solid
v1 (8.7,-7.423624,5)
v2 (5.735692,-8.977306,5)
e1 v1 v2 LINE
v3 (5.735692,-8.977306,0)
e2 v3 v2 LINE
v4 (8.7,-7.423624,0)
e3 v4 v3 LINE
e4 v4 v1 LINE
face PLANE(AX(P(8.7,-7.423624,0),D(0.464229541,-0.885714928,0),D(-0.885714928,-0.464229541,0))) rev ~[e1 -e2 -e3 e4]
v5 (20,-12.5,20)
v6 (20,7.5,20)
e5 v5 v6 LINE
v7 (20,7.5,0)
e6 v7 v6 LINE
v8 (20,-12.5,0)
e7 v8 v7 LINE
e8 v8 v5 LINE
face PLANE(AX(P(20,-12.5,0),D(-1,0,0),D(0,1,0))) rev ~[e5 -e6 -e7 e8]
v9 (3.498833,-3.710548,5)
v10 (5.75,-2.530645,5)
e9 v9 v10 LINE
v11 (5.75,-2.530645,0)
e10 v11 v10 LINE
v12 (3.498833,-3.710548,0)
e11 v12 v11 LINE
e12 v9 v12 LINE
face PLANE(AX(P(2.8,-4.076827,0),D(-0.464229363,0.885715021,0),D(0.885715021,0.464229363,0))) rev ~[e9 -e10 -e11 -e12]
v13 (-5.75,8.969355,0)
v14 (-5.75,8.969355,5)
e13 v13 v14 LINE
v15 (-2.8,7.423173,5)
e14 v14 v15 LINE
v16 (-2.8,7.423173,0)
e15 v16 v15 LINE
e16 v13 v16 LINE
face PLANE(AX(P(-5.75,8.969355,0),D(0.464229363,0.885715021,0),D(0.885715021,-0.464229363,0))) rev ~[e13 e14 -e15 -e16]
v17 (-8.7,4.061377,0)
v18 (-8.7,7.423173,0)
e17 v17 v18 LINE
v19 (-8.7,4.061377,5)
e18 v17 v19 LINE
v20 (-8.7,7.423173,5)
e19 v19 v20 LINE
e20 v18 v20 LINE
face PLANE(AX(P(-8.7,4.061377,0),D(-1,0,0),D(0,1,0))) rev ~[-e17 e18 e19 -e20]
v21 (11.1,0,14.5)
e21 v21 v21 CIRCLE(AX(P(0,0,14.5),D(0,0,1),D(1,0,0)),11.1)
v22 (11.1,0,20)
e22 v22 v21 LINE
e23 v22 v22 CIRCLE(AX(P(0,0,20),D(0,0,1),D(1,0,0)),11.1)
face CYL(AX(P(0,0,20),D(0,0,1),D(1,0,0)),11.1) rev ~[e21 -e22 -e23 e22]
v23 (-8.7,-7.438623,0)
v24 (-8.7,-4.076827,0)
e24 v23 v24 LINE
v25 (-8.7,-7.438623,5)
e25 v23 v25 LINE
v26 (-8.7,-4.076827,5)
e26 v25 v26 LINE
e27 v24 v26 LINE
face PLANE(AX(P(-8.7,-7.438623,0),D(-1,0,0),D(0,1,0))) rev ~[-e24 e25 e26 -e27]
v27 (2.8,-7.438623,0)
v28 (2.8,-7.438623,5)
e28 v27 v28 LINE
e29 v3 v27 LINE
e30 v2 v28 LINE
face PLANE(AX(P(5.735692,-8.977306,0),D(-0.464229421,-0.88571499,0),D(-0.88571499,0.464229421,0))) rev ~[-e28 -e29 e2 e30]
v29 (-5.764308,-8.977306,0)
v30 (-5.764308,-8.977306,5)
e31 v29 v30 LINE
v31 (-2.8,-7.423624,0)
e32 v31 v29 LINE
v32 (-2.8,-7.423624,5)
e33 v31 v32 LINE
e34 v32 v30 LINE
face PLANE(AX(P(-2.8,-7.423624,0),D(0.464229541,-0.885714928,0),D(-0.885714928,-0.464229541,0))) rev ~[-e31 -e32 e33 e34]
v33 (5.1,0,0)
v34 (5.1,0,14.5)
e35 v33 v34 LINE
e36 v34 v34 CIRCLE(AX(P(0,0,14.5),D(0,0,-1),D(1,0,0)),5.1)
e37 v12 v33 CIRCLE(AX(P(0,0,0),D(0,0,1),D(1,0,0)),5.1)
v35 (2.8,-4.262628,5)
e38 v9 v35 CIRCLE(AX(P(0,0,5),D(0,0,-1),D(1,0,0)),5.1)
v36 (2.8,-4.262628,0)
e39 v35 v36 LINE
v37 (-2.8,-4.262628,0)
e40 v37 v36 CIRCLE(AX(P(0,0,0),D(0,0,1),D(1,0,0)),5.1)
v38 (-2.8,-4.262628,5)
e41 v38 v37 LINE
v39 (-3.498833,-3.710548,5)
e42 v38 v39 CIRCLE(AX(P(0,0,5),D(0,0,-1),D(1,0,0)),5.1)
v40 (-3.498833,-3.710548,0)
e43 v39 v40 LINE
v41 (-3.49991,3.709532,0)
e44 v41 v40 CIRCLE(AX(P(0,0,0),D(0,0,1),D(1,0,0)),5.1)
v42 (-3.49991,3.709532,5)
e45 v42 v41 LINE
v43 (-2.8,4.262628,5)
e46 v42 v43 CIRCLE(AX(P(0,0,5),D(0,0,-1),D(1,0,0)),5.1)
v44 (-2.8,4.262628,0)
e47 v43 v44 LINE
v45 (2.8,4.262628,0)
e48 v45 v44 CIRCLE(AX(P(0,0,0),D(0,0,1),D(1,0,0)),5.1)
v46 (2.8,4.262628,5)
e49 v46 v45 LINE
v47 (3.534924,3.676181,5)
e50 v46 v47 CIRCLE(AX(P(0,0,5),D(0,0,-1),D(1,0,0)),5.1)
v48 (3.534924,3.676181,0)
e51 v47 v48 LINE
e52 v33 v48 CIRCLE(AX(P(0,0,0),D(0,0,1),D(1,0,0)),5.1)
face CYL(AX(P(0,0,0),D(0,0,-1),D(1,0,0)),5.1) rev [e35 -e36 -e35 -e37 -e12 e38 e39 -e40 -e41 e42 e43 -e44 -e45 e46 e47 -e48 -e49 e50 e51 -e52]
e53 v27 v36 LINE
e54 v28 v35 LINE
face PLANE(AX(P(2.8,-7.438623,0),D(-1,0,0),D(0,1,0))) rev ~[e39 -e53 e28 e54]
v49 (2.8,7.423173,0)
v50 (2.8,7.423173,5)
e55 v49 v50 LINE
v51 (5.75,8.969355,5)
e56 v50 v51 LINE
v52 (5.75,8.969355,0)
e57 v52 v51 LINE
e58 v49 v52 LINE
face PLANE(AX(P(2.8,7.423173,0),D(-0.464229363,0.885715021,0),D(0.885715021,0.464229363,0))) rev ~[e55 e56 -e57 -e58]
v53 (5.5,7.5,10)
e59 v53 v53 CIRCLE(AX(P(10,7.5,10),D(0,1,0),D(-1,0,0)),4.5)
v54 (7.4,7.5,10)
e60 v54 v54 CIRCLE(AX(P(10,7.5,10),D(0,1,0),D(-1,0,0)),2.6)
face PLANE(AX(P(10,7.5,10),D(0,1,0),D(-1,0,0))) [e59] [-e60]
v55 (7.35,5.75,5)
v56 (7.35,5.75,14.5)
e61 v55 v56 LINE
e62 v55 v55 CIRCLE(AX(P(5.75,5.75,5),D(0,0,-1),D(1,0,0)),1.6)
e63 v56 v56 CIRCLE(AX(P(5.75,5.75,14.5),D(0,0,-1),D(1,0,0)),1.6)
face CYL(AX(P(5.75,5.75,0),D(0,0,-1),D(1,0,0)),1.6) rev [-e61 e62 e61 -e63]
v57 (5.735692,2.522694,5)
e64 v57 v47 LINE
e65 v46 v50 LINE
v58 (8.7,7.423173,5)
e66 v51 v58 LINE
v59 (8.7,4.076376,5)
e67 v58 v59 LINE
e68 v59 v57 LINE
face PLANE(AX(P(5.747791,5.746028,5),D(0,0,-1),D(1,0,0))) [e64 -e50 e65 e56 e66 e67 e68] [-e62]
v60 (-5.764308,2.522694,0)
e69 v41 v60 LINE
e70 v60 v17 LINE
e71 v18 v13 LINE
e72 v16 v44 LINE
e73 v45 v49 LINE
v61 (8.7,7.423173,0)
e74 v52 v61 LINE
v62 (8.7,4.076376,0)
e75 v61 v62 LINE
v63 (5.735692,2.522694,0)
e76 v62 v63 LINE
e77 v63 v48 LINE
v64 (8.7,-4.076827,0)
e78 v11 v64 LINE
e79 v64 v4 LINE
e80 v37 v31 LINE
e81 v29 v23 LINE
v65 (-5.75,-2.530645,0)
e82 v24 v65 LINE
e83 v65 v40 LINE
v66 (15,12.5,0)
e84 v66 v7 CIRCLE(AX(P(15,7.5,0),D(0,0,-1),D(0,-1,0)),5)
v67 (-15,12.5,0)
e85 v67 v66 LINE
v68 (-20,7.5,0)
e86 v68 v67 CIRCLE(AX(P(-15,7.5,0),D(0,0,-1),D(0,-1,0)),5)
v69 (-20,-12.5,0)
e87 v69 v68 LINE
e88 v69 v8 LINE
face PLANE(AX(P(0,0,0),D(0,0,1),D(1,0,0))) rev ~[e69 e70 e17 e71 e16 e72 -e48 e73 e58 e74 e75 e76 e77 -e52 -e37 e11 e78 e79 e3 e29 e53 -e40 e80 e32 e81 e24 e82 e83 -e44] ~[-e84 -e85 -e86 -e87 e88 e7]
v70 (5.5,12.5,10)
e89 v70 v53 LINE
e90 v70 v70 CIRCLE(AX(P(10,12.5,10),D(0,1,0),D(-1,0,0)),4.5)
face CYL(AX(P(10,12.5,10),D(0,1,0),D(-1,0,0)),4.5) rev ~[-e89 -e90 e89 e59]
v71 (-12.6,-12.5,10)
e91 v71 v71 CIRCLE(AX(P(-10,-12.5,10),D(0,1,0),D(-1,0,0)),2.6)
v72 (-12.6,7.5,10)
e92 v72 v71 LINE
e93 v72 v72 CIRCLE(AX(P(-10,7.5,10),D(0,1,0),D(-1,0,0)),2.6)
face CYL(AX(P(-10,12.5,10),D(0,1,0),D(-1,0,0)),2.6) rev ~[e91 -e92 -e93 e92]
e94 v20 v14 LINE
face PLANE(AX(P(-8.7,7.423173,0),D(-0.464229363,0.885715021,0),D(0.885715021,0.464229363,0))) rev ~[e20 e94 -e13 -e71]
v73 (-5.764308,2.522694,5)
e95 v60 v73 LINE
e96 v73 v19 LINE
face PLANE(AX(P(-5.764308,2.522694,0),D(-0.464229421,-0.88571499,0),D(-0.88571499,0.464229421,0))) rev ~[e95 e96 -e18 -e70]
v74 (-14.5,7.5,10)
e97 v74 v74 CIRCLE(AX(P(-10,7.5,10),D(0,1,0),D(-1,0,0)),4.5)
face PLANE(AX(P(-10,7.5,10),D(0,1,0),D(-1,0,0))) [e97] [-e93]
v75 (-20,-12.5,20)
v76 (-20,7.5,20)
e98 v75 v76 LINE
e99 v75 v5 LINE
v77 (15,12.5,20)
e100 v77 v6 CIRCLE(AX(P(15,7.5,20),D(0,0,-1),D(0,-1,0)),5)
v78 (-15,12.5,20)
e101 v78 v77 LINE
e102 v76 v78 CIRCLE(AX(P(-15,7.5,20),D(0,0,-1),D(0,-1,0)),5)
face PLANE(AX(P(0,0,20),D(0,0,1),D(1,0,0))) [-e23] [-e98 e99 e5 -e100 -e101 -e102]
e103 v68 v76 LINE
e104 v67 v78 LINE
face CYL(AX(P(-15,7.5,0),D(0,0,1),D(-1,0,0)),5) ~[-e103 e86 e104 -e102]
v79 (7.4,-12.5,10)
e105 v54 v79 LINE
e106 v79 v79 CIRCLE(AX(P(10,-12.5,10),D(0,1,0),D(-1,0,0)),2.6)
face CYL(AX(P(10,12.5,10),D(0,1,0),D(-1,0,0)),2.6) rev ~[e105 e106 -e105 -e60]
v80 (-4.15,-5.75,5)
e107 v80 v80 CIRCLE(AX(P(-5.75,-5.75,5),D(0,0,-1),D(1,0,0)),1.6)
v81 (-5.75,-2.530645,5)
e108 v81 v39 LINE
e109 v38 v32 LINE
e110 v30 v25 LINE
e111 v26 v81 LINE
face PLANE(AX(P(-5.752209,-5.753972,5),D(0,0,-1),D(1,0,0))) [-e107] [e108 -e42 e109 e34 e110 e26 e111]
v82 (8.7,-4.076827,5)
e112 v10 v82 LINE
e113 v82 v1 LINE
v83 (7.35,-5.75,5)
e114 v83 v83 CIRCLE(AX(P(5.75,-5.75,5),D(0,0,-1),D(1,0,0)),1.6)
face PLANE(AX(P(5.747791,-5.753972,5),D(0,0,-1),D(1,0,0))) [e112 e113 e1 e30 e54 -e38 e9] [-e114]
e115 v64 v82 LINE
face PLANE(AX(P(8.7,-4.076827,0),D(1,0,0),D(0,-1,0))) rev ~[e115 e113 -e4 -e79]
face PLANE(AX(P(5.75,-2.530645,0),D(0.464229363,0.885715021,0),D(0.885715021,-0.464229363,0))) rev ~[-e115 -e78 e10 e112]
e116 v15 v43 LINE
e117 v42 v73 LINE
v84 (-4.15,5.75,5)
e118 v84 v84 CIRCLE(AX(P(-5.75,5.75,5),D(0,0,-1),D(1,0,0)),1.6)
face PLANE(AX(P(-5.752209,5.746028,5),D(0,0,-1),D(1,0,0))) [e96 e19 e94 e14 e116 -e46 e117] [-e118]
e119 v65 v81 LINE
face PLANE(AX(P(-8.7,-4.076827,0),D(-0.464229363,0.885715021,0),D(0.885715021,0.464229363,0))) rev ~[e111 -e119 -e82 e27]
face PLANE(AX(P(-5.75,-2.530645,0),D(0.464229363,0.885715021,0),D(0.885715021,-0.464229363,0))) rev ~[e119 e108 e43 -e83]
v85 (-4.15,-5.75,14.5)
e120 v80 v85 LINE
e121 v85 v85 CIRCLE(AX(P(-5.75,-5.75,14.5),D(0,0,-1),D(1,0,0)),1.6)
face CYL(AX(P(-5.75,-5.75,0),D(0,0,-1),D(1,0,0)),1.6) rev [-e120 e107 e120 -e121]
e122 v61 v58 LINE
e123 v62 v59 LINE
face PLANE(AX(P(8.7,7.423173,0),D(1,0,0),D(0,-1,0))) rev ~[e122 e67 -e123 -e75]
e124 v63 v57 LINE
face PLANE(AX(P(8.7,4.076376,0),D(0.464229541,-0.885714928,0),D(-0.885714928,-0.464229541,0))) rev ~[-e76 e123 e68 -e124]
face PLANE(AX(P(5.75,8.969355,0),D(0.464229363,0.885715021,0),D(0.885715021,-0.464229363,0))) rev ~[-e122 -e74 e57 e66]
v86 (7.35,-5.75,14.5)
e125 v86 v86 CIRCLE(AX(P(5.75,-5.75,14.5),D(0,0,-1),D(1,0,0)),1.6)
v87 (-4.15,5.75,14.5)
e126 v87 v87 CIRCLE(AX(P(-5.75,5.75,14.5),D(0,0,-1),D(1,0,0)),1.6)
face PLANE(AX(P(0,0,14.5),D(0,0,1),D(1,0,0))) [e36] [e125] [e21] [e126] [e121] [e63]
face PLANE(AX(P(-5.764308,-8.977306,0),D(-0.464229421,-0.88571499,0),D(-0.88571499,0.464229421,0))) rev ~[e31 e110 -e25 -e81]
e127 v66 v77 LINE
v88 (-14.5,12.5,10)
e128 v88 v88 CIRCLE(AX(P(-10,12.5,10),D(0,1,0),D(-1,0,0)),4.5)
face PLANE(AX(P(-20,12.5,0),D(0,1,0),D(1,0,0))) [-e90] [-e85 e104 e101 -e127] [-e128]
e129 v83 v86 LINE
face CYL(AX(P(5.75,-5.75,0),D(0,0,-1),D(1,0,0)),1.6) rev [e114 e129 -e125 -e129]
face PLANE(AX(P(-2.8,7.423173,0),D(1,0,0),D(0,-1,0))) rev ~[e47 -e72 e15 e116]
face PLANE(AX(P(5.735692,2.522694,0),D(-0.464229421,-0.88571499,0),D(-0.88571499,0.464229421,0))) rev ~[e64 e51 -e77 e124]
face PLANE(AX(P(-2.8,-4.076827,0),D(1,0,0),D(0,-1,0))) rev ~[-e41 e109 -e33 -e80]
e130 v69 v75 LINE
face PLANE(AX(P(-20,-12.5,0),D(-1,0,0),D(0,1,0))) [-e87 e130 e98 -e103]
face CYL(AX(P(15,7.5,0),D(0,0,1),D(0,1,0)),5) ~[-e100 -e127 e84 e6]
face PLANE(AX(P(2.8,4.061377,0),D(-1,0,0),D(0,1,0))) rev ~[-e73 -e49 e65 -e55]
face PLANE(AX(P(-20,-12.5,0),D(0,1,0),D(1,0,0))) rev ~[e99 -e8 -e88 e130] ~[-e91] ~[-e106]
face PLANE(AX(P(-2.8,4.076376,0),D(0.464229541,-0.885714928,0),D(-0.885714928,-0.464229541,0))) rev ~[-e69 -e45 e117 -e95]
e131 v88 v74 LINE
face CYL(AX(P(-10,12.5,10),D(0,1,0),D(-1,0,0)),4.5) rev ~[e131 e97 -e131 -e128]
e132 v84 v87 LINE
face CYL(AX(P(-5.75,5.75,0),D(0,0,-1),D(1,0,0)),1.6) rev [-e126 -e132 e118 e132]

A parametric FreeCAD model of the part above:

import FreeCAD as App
import Part
import Sketcher

V = App.Vector
Q = App.Units.Quantity


def edges_at(feature, points):
    """Names of the edges that pass closest to the given points."""
    edges = feature.Shape.Edges
    near = lambda p: min(range(len(edges)), key=lambda i: edges[i].distToShape(Part.Vertex(*p))[0])
    return sorted({f"Edge{near(p) + 1}" for p in points})

doc = App.newDocument("Part")
body = doc.addObject("PartDesign::Body", "Body")

# Sketch on XY plane
sketch1 = body.newObject("Sketcher::SketchObject", "Sketch")
sketch1.AttachmentSupport = (doc.getObject("XY_Plane"), [""])
sketch1.MapMode = "FlatFace"
sketch1.addGeometry([
    Part.LineSegment(V(-20, 12.5, 0), V(-20, -12.5, 0)),  # 0
    Part.LineSegment(V(-20, -12.5, 0), V(20, -12.5, 0)),  # 1
    Part.LineSegment(V(20, -12.5, 0), V(20, 12.5, 0)),  # 2
    Part.LineSegment(V(20, 12.5, 0), V(-20, 12.5, 0)),  # 3
    Part.Circle(V(-5.8, -5.8, 0), V(0, 0, 1), 1.6),  # 4
    Part.Circle(V(5.8, -5.8, 0), V(0, 0, 1), 1.6),  # 5
    Part.Circle(V(-5.8, 5.8, 0), V(0, 0, 1), 1.6),  # 6
    Part.Circle(V(0, 0, 0), V(0, 0, 1), 5.1),  # 7
    Part.Circle(V(5.8, 5.8, 0), V(0, 0, 1), 1.6),  # 8
], False)
sketch1.addConstraint([
    Sketcher.Constraint("Coincident", 0, 2, 1, 1),
    Sketcher.Constraint("Coincident", 1, 2, 2, 1),
    Sketcher.Constraint("Coincident", 2, 2, 3, 1),
    Sketcher.Constraint("Coincident", 3, 2, 0, 1),
    Sketcher.Constraint("Vertical", 0),
    Sketcher.Constraint("Horizontal", 1),
    Sketcher.Constraint("Vertical", 2),
    Sketcher.Constraint("Horizontal", 3),
    Sketcher.Constraint("Coincident", 7, 3, -1, 1),
    Sketcher.Constraint("Equal", 4, 5),
    Sketcher.Constraint("Equal", 5, 6),
    Sketcher.Constraint("Equal", 6, 8),
    Sketcher.Constraint("Symmetric", 5, 3, 6, 3, -1, 1),
    Sketcher.Constraint("Symmetric", 4, 3, 8, 3, -1, 1),
    Sketcher.Constraint("Symmetric", 0, 2, 2, 2, -1, 1),
    Sketcher.Constraint("Symmetric", 4, 3, 5, 3, -2),
    Sketcher.Constraint("Diameter", 4, Q("3.2 mm")),
    Sketcher.Constraint("Diameter", 7, Q("10.2 mm")),
    Sketcher.Constraint("DistanceX", 1, 1, 1, 2, Q("40 mm")),
    Sketcher.Constraint("DistanceY", 0, 2, 0, 1, Q("25 mm")),
    Sketcher.Constraint("DistanceX", 4, 3, 5, 3, Q("11.5 mm")),
    Sketcher.Constraint("DistanceY", 4, 3, 6, 3, Q("11.5 mm")),
])
pad1 = body.newObject("PartDesign::Pad", "Pad")
pad1.Profile = sketch1
pad1.Length = 20
doc.recompute()

fillet = body.newObject("PartDesign::Fillet", "Fillet")
fillet.Base = (pad1, edges_at(pad1, [(20, 12.5, 10), (-20, 12.5, 10)]))
fillet.Radius = 5

# Sketch on XY plane
sketch2 = body.newObject("Sketcher::SketchObject", "Sketch001")
sketch2.AttachmentSupport = (doc.getObject("XY_Plane"), [""])
sketch2.MapMode = "FlatFace"
sketch2.AttachmentOffset = App.Placement(V(0, 0, 20), App.Rotation())
sketch2.addGeometry(Part.Circle(V(0, 0, 0), V(0, 0, 1), 11), False)
sketch2.addConstraint([
    Sketcher.Constraint("Coincident", 0, 3, -1, 1),
    Sketcher.Constraint("Diameter", 0, Q("22.2 mm")),
])
pocket1 = body.newObject("PartDesign::Pocket", "Pocket")
pocket1.Profile = sketch2
pocket1.Length = 5.5

# Sketch on XY plane
sketch3 = body.newObject("Sketcher::SketchObject", "Sketch002")
sketch3.AttachmentSupport = (doc.getObject("XY_Plane"), [""])
sketch3.MapMode = "FlatFace"
sketch3.addGeometry([
    Part.LineSegment(V(8.7, -7.4, 0), V(5.7, -9, 0)),  # 0
    Part.LineSegment(V(5.7, -9, 0), V(2.8, -7.4, 0)),  # 1
    Part.LineSegment(V(2.8, -7.4, 0), V(2.8, -4.1, 0)),  # 2
    Part.LineSegment(V(2.8, -4.1, 0), V(5.8, -2.5, 0)),  # 3
    Part.LineSegment(V(5.8, -2.5, 0), V(8.7, -4.1, 0)),  # 4
    Part.LineSegment(V(8.7, -4.1, 0), V(8.7, -7.4, 0)),  # 5
    Part.LineSegment(V(8.7, 4.1, 0), V(5.7, 2.5, 0)),  # 6
    Part.LineSegment(V(5.7, 2.5, 0), V(2.8, 4.1, 0)),  # 7
    Part.LineSegment(V(2.8, 4.1, 0), V(2.8, 7.4, 0)),  # 8
    Part.LineSegment(V(2.8, 7.4, 0), V(5.8, 9, 0)),  # 9
    Part.LineSegment(V(5.8, 9, 0), V(8.7, 7.4, 0)),  # 10
    Part.LineSegment(V(8.7, 7.4, 0), V(8.7, 4.1, 0)),  # 11
    Part.Circle(V(5.8, 5.8, 0), V(0, 0, 1), 1.6),  # 12
    Part.LineSegment(V(-2.8, 4.1, 0), V(-5.8, 2.5, 0)),  # 13
    Part.LineSegment(V(-5.8, 2.5, 0), V(-8.7, 4.1, 0)),  # 14
    Part.LineSegment(V(-8.7, 4.1, 0), V(-8.7, 7.4, 0)),  # 15
    Part.LineSegment(V(-8.7, 7.4, 0), V(-5.8, 9, 0)),  # 16
    Part.LineSegment(V(-5.8, 9, 0), V(-2.8, 7.4, 0)),  # 17
    Part.LineSegment(V(-2.8, 7.4, 0), V(-2.8, 4.1, 0)),  # 18
    Part.Circle(V(-5.8, 5.8, 0), V(0, 0, 1), 1.6),  # 19
    Part.LineSegment(V(-2.8, -7.4, 0), V(-5.8, -9, 0)),  # 20
    Part.LineSegment(V(-5.8, -9, 0), V(-8.7, -7.4, 0)),  # 21
    Part.LineSegment(V(-8.7, -7.4, 0), V(-8.7, -4.1, 0)),  # 22
    Part.LineSegment(V(-8.7, -4.1, 0), V(-5.8, -2.5, 0)),  # 23
    Part.LineSegment(V(-5.8, -2.5, 0), V(-2.8, -4.1, 0)),  # 24
    Part.LineSegment(V(-2.8, -4.1, 0), V(-2.8, -7.4, 0)),  # 25
    Part.Circle(V(-5.8, -5.8, 0), V(0, 0, 1), 1.6),  # 26
], False)
sketch3.addConstraint([
    Sketcher.Constraint("Coincident", 0, 2, 1, 1),
    Sketcher.Constraint("Coincident", 1, 2, 2, 1),
    Sketcher.Constraint("Coincident", 2, 2, 3, 1),
    Sketcher.Constraint("Coincident", 3, 2, 4, 1),
    Sketcher.Constraint("Coincident", 4, 2, 5, 1),
    Sketcher.Constraint("Coincident", 5, 2, 0, 1),
    Sketcher.Constraint("Coincident", 6, 2, 7, 1),
    Sketcher.Constraint("Coincident", 7, 2, 8, 1),
    Sketcher.Constraint("Coincident", 8, 2, 9, 1),
    Sketcher.Constraint("Coincident", 9, 2, 10, 1),
    Sketcher.Constraint("Coincident", 10, 2, 11, 1),
    Sketcher.Constraint("Coincident", 11, 2, 6, 1),
    Sketcher.Constraint("Coincident", 13, 2, 14, 1),
    Sketcher.Constraint("Coincident", 14, 2, 15, 1),
    Sketcher.Constraint("Coincident", 15, 2, 16, 1),
    Sketcher.Constraint("Coincident", 16, 2, 17, 1),
    Sketcher.Constraint("Coincident", 17, 2, 18, 1),
    Sketcher.Constraint("Coincident", 18, 2, 13, 1),
    Sketcher.Constraint("Coincident", 20, 2, 21, 1),
    Sketcher.Constraint("Coincident", 21, 2, 22, 1),
    Sketcher.Constraint("Coincident", 22, 2, 23, 1),
    Sketcher.Constraint("Coincident", 23, 2, 24, 1),
    Sketcher.Constraint("Coincident", 24, 2, 25, 1),
    Sketcher.Constraint("Coincident", 25, 2, 20, 1),
    Sketcher.Constraint("Vertical", 2),
    Sketcher.Constraint("Vertical", 5),
    Sketcher.Constraint("Vertical", 8),
    Sketcher.Constraint("Vertical", 11),
    Sketcher.Constraint("Vertical", 15),
    Sketcher.Constraint("Vertical", 18),
    Sketcher.Constraint("Vertical", 22),
    Sketcher.Constraint("Vertical", 25),
    Sketcher.Constraint("Equal", 12, 19),
    Sketcher.Constraint("Equal", 19, 26),
    Sketcher.Constraint("Symmetric", 12, 3, 26, 3, -1, 1),
    Sketcher.Constraint("Symmetric", 12, 3, 19, 3, -2),
    Sketcher.Constraint("Symmetric", 10, 2, 15, 2, -2),
    Sketcher.Constraint("Symmetric", 9, 2, 16, 2, -2),
    Sketcher.Constraint("Symmetric", 8, 2, 17, 2, -2),
    Sketcher.Constraint("Symmetric", 4, 2, 22, 2, -2),
    Sketcher.Constraint("Symmetric", 3, 2, 23, 2, -2),
    Sketcher.Constraint("Symmetric", 2, 2, 24, 2, -2),
    Sketcher.Constraint("Parallel", 0, 3),
    Sketcher.Constraint("Parallel", 1, 4),
    Sketcher.Constraint("Parallel", 3, 6),
    Sketcher.Constraint("Parallel", 4, 7),
    Sketcher.Constraint("Parallel", 6, 9),
    Sketcher.Constraint("Parallel", 7, 10),
    Sketcher.Constraint("Parallel", 9, 13),
    Sketcher.Constraint("Parallel", 10, 14),
    Sketcher.Constraint("Parallel", 13, 16),
    Sketcher.Constraint("Parallel", 16, 20),
    Sketcher.Constraint("Parallel", 17, 21),
    Sketcher.Constraint("Horizontal", 2, 2, 4, 2),
    Sketcher.Constraint("Horizontal", 8, 2, 10, 2),
    Sketcher.Constraint("Horizontal", 6, 2, 13, 2),
    Sketcher.Constraint("Horizontal", 7, 2, 14, 2),
    Sketcher.Constraint("Horizontal", 0, 2, 20, 2),
    Sketcher.Constraint("Horizontal", 1, 2, 21, 2),
    Sketcher.Constraint("Vertical", 12, 3, 3, 2),
    Sketcher.Constraint("Vertical", 0, 2, 6, 2),
    Sketcher.Constraint("Vertical", 2, 2, 7, 2),
    Sketcher.Constraint("Vertical", 3, 2, 9, 2),
    Sketcher.Constraint("Equal", 2, 8),
    Sketcher.Constraint("Diameter", 12, Q("3.2 mm")),
    Sketcher.Constraint("DistanceX", -1, 1, 1, 2, Q("2.8 mm")),
    Sketcher.Constraint("DistanceX", -1, 1, 4, 2, Q("8.7 mm")),
    Sketcher.Constraint("DistanceY", 26, 3, 19, 3, Q("11.5 mm")),
    Sketcher.Constraint("DistanceY", 3, 2, 9, 2, Q("11.5 mm")),
    Sketcher.Constraint("DistanceY", 1, 2, 5, 2, Q("0.014999 mm")),
    Sketcher.Constraint("Distance", 1, Q("3.314488 mm")),
    Sketcher.Constraint("DistanceY", 2, 1, 2, 2, Q("3.361796 mm")),
    Sketcher.Constraint("DistanceY", 0, 2, -1, 1, Q("8.977306 mm")),
])
pocket2 = body.newObject("PartDesign::Pocket", "Pocket001")
pocket2.Profile = sketch3
pocket2.Length = 5
pocket2.Reversed = True

# Sketch on XZ plane
sketch4 = body.newObject("Sketcher::SketchObject", "Sketch003")
sketch4.AttachmentSupport = (doc.getObject("XZ_Plane"), [""])
sketch4.MapMode = "FlatFace"
sketch4.AttachmentOffset = App.Placement(V(0, 0, -12.5), App.Rotation())
sketch4.addGeometry([
    Part.Circle(V(10, 10, 0), V(0, 0, 1), 2.6),
    Part.Circle(V(-10, 10, 0), V(0, 0, 1), 2.6),
], False)
sketch4.addConstraint([
    Sketcher.Constraint("Equal", 0, 1),
    Sketcher.Constraint("Symmetric", 0, 3, 1, 3, -2),
    Sketcher.Constraint("Diameter", 0, Q("5.2 mm")),
    Sketcher.Constraint("DistanceX", -1, 1, 0, 3, Q("10 mm")),
    Sketcher.Constraint("DistanceY", -1, 1, 0, 3, Q("10 mm")),
])
pocket3 = body.newObject("PartDesign::Pocket", "Pocket002")
pocket3.Profile = sketch4
pocket3.Type = "ThroughAll"
pocket3.Reversed = True

# Sketch on XZ plane
sketch5 = body.newObject("Sketcher::SketchObject", "Sketch004")
sketch5.AttachmentSupport = (doc.getObject("XZ_Plane"), [""])
sketch5.MapMode = "FlatFace"
sketch5.AttachmentOffset = App.Placement(V(0, 0, -12.5), App.Rotation())
sketch5.addGeometry([
    Part.Circle(V(-10, 10, 0), V(0, 0, 1), 4.5),
    Part.Circle(V(-10, 10, 0), V(0, 0, 1), 2.6),
    Part.Circle(V(10, 10, 0), V(0, 0, 1), 4.5),
    Part.Circle(V(10, 10, 0), V(0, 0, 1), 2.6),
], False)
sketch5.addConstraint([
    Sketcher.Constraint("Coincident", 1, 3, 0, 3),
    Sketcher.Constraint("Coincident", 3, 3, 2, 3),
    Sketcher.Constraint("Equal", 0, 2),
    Sketcher.Constraint("Equal", 1, 3),
    Sketcher.Constraint("Symmetric", 0, 3, 2, 3, -2),
    Sketcher.Constraint("Diameter", 0, Q("9 mm")),
    Sketcher.Constraint("Diameter", 1, Q("5.2 mm")),
    Sketcher.Constraint("DistanceX", 0, 3, -1, 1, Q("10 mm")),
    Sketcher.Constraint("DistanceY", -1, 1, 0, 3, Q("10 mm")),
])
pocket4 = body.newObject("PartDesign::Pocket", "Pocket003")
pocket4.Profile = sketch5
pocket4.Length = 5
pocket4.Reversed = True

doc.recompute()
